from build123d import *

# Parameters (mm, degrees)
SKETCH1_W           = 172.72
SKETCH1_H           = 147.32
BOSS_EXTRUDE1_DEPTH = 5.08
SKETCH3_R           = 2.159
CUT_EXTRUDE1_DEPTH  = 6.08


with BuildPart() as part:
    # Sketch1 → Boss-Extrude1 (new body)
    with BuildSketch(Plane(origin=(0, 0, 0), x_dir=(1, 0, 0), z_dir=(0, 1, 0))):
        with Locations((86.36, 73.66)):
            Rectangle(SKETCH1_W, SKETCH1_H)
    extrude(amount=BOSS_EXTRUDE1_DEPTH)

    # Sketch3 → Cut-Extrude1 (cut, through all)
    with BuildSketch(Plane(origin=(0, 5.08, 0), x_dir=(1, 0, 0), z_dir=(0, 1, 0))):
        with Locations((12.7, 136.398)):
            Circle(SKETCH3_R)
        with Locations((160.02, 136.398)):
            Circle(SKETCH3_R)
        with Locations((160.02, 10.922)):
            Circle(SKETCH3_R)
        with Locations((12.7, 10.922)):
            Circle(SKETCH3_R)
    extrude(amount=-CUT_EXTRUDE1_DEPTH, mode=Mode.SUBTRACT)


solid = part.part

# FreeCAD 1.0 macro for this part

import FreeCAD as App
import Part
import Sketcher
Q = App.Units.Quantity

doc = App.newDocument("Part")
body = doc.addObject("PartDesign::Body", "Body")

sketch1 = body.newObject("Sketcher::SketchObject", "Sketch")
sketch1.AttachmentSupport = (doc.getObject("XZ_Plane"), [""])
sketch1.MapMode = "FlatFace"
sketch1.addGeometry([
    Part.LineSegment(App.Vector(0, -147, 0), App.Vector(0, 0, 0)),
    Part.LineSegment(App.Vector(0, 0, 0), App.Vector(173, 0, 0)),
    Part.LineSegment(App.Vector(173, 0, 0), App.Vector(173, -147, 0)),
    Part.LineSegment(App.Vector(173, -147, 0), App.Vector(0, -147, 0)),
], False)
sketch1.addConstraint([
    Sketcher.Constraint("Coincident", 0, 2, 1, 1),
    Sketcher.Constraint("Coincident", 1, 2, 2, 1),
    Sketcher.Constraint("Coincident", 2, 2, 3, 1),
    Sketcher.Constraint("Coincident", 3, 2, 0, 1),
    Sketcher.Constraint("Vertical", 0),
    Sketcher.Constraint("Horizontal", 1),
    Sketcher.Constraint("Vertical", 2),
    Sketcher.Constraint("Horizontal", 3),
    Sketcher.Constraint("Coincident", 0, 2, -1, 1),
    Sketcher.Constraint("DistanceX", 1, 1, 1, 2, Q("6.8 in")),
    Sketcher.Constraint("DistanceY", 0, 1, 0, 2, Q("5.8 in")),
])
pad1 = body.newObject("PartDesign::Pad", "Pad")
pad1.Profile = sketch1
pad1.Length = Q("0.2 in")
pad1.Reversed = True

sketch2 = body.newObject("Sketcher::SketchObject", "Sketch001")
sketch2.AttachmentSupport = (doc.getObject("XZ_Plane"), [""])
sketch2.MapMode = "FlatFace"
sketch2.AttachmentOffset = App.Placement(App.Vector(0, 0, -0.2 * 25.4), App.Rotation())
sketch2.addGeometry([
    Part.Circle(App.Vector(12.7, -136.4, 0), App.Vector(0, 0, 1), 2.2),
    Part.Circle(App.Vector(160, -136.4, 0), App.Vector(0, 0, 1), 2.2),
    Part.Circle(App.Vector(160, -10.9, 0), App.Vector(0, 0, 1), 2.2),
    Part.Circle(App.Vector(12.7, -10.9, 0), App.Vector(0, 0, 1), 2.2),
], False)
sketch2.addConstraint([
    Sketcher.Constraint("Equal", 0, 1),
    Sketcher.Constraint("Equal", 1, 2),
    Sketcher.Constraint("Equal", 2, 3),
    Sketcher.Constraint("Horizontal", 0, 3, 1, 3),
    Sketcher.Constraint("Horizontal", 2, 3, 3, 3),
    Sketcher.Constraint("Vertical", 1, 3, 2, 3),
    Sketcher.Constraint("Vertical", 0, 3, 3, 3),
    Sketcher.Constraint("Diameter", 0, Q("0.17 in")),
    Sketcher.Constraint("DistanceX", -1, 1, 0, 3, Q("0.5 in")),
    Sketcher.Constraint("DistanceX", -1, 1, 1, 3, Q("6.3 in")),
    Sketcher.Constraint("DistanceY", 0, 3, -1, 1, Q("5.37 in")),
    Sketcher.Constraint("DistanceY", 2, 3, -1, 1, Q("0.43 in")),
])
pocket1 = body.newObject("PartDesign::Pocket", "Pocket")
pocket1.Profile = sketch2
pocket1.Type = "ThroughAll"
pocket1.Reversed = True

doc.recompute()
